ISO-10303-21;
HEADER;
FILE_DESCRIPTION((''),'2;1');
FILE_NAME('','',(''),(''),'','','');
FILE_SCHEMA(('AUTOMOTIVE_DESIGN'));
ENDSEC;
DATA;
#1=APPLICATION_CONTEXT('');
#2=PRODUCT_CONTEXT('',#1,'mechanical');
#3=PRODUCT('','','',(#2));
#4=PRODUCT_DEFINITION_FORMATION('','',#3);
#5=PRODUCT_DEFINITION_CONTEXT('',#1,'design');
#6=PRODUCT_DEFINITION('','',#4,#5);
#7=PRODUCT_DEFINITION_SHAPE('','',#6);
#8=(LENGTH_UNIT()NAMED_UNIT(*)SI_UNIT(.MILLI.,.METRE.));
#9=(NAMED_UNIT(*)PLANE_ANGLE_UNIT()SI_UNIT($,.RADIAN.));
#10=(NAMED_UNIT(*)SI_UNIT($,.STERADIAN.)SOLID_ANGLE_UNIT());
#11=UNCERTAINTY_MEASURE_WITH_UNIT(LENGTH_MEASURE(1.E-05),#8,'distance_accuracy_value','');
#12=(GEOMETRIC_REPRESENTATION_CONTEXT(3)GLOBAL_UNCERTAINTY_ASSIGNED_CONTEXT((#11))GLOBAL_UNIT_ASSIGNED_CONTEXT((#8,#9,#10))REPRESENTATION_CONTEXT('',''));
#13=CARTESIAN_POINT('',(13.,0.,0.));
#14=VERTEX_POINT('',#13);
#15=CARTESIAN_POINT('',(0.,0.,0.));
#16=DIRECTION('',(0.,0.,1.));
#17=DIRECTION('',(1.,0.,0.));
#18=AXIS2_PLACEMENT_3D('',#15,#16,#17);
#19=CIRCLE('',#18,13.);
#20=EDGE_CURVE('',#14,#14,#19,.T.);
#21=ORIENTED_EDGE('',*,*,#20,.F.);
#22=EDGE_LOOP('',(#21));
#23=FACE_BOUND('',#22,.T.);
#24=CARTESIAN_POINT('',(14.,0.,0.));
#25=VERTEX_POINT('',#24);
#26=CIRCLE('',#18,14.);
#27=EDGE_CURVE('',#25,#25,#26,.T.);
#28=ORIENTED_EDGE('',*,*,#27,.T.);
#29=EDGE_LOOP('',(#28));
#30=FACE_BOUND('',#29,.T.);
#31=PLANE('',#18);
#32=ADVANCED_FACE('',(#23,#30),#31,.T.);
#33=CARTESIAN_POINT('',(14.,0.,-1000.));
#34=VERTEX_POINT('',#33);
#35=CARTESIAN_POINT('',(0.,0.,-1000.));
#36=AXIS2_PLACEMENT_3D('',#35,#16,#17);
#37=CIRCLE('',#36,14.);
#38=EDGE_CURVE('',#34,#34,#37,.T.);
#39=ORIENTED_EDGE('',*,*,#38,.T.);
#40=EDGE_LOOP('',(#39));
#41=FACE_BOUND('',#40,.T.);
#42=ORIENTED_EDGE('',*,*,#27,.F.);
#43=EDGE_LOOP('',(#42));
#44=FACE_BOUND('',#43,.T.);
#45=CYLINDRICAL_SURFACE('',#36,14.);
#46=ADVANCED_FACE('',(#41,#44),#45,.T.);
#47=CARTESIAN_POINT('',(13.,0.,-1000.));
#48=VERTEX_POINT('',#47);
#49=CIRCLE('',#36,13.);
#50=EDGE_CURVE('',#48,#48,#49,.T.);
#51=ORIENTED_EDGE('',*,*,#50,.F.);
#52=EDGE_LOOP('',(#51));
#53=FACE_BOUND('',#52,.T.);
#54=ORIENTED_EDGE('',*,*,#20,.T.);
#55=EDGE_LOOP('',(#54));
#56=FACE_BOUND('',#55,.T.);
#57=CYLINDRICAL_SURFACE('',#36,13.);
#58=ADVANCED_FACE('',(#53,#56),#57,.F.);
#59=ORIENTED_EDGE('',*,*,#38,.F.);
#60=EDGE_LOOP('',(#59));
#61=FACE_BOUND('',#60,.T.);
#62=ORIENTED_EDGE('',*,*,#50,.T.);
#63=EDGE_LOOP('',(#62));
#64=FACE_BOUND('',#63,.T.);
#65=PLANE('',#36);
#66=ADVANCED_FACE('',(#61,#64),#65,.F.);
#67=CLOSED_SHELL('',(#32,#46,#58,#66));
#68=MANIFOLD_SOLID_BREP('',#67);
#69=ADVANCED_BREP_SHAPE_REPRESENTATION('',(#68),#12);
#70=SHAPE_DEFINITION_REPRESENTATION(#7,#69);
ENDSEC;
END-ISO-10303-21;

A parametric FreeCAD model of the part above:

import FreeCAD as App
import Part
import Sketcher

V = App.Vector
Q = App.Units.Quantity

doc = App.newDocument("Part")
body = doc.addObject("PartDesign::Body", "Body")

# Sketch on XY plane
sketch1 = doc.addObject("Sketcher::SketchObject", "Sketch")
body.addObject(sketch1)
sketch1.AttachmentSupport = (doc.XY_Plane, [""])
sketch1.MapMode = "FlatFace"
sketch1.addGeometry(Part.Circle(V(0, 0, 0), V(0, 0, 1), 14), False)
sketch1.addGeometry(Part.Circle(V(0, 0, 0), V(0, 0, 1), 13), False)
sketch1.addConstraint(Sketcher.Constraint("Coincident", 0, 3, -1, 1))
sketch1.addConstraint(Sketcher.Constraint("Coincident", 1, 3, -1, 1))
sketch1.addConstraint(Sketcher.Constraint("Diameter", 0, Q("28 mm")))
sketch1.addConstraint(Sketcher.Constraint("Diameter", 1, Q("26 mm")))
pad1 = doc.addObject("PartDesign::Pad", "Pad")
body.addObject(pad1)
pad1.Profile = sketch1
pad1.Length = 1000
pad1.Reversed = True

doc.recompute()
